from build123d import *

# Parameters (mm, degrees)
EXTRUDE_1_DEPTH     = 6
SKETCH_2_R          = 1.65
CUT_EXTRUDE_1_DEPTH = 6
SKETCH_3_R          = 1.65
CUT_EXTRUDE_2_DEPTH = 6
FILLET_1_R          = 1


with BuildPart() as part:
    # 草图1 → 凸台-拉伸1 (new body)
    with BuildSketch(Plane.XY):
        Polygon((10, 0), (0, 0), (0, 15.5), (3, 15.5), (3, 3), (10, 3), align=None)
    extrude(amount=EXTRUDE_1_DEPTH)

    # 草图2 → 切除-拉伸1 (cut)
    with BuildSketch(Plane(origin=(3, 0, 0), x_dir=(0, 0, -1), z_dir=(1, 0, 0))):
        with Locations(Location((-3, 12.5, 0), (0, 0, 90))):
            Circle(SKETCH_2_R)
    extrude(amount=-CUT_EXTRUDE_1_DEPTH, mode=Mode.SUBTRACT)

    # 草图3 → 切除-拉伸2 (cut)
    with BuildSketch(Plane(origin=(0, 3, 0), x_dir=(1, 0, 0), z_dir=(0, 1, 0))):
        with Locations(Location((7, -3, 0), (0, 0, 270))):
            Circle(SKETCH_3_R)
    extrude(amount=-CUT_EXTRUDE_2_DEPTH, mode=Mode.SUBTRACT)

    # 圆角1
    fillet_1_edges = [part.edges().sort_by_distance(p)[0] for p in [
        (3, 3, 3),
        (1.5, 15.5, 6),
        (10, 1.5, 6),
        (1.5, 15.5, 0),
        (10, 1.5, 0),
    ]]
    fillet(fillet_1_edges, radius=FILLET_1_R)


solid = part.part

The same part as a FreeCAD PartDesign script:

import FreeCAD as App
import Part
import Sketcher
from FreeCAD import Vector


def edges_at(feature, points):
    """Names of the edges that pass closest to the given points."""
    edges = feature.Shape.Edges
    near = lambda p: min(range(len(edges)), key=lambda i: edges[i].distToShape(Part.Vertex(*p))[0])
    return sorted({f"Edge{near(p) + 1}" for p in points})


def add_polygon(sketch, points):
    """Adds a closed chain of lines whose ends are joined by coincident constraints."""
    first, n = sketch.GeometryCount, len(points)
    for a, b in zip(points, points[1:] + points[:1]):
        sketch.addGeometry(Part.LineSegment(App.Vector(*a, 0), App.Vector(*b, 0)), False)
    for i in range(n):
        sketch.addConstraint(Sketcher.Constraint("Coincident", first + i, 2, first + (i + 1) % n, 1))

doc = App.newDocument("Part")
body = doc.addObject("PartDesign::Body", "Body")

sketch1 = doc.addObject("Sketcher::SketchObject", "Sketch")
body.addObject(sketch1)
sketch1.AttachmentSupport = (doc.XY_Plane, [""])
sketch1.MapMode = "FlatFace"
add_polygon(sketch1, [(0, 0), (10, 0), (10, 3), (3, 3), (3, 15.5), (0, 15.5)])
sketch1.addConstraint(Sketcher.Constraint("Horizontal", 0))
sketch1.addConstraint(Sketcher.Constraint("Vertical", 1))
sketch1.addConstraint(Sketcher.Constraint("Horizontal", 2))
sketch1.addConstraint(Sketcher.Constraint("Vertical", 3))
sketch1.addConstraint(Sketcher.Constraint("Horizontal", 4))
sketch1.addConstraint(Sketcher.Constraint("Vertical", 5))
sketch1.addConstraint(Sketcher.Constraint("Coincident", 5, 2, -1, 1))
sketch1.addConstraint(Sketcher.Constraint("Equal", 4, 1))
sketch1.addConstraint(Sketcher.Constraint("DistanceX", 0, 1, 0, 2, 10.0))
sketch1.addConstraint(Sketcher.Constraint("DistanceX", 2, 2, 2, 1, 7.0))
sketch1.addConstraint(Sketcher.Constraint("DistanceY", 3, 1, 3, 2, 12.5))
pad1 = doc.addObject("PartDesign::Pad", "Pad")
body.addObject(pad1)
pad1.Profile = sketch1
pad1.Length = 6

sketch2 = doc.addObject("Sketcher::SketchObject", "Sketch001")
body.addObject(sketch2)
sketch2.AttachmentSupport = (doc.YZ_Plane, [""])
sketch2.MapMode = "FlatFace"
sketch2.AttachmentOffset = App.Placement(Vector(0, 0, 3), App.Rotation())
sketch2.addGeometry(Part.Circle(Vector(12.5, 3, 0), Vector(0, 0, 1), 1.6), False)
sketch2.addConstraint(Sketcher.Constraint("Diameter", 0, 3.3))
sketch2.addConstraint(Sketcher.Constraint("DistanceY", -1, 1, 0, 3, 3.0))
sketch2.addConstraint(Sketcher.Constraint("DistanceX", -1, 1, 0, 3, 12.5))
pocket1 = doc.addObject("PartDesign::Pocket", "Pocket")
body.addObject(pocket1)
pocket1.Profile = sketch2
pocket1.Length = 6

sketch3 = doc.addObject("Sketcher::SketchObject", "Sketch002")
body.addObject(sketch3)
sketch3.AttachmentSupport = (doc.XZ_Plane, [""])
sketch3.MapMode = "FlatFace"
sketch3.AttachmentOffset = App.Placement(Vector(0, 0, -3), App.Rotation())
sketch3.addGeometry(Part.Circle(Vector(7, 3, 0), Vector(0, 0, 1), 1.6), False)
sketch3.addConstraint(Sketcher.Constraint("Diameter", 0, 3.3))
sketch3.addConstraint(Sketcher.Constraint("DistanceX", -1, 1, 0, 3, 7.0))
sketch3.addConstraint(Sketcher.Constraint("DistanceY", -1, 1, 0, 3, 3.0))
pocket2 = doc.addObject("PartDesign::Pocket", "Pocket001")
body.addObject(pocket2)
pocket2.Profile = sketch3
pocket2.Length = 6
pocket2.Reversed = True
doc.recompute()

fillet = doc.addObject("PartDesign::Fillet", "Fillet")
body.addObject(fillet)
fillet.Base = (pocket2, edges_at(pocket2, [
    (3, 3, 3),
    (1.5, 15.5, 6),
    (10, 1.5, 6),
    (1.5, 15.5, 0),
    (10, 1.5, 0),
]))
fillet.Radius = 1

doc.recompute()
